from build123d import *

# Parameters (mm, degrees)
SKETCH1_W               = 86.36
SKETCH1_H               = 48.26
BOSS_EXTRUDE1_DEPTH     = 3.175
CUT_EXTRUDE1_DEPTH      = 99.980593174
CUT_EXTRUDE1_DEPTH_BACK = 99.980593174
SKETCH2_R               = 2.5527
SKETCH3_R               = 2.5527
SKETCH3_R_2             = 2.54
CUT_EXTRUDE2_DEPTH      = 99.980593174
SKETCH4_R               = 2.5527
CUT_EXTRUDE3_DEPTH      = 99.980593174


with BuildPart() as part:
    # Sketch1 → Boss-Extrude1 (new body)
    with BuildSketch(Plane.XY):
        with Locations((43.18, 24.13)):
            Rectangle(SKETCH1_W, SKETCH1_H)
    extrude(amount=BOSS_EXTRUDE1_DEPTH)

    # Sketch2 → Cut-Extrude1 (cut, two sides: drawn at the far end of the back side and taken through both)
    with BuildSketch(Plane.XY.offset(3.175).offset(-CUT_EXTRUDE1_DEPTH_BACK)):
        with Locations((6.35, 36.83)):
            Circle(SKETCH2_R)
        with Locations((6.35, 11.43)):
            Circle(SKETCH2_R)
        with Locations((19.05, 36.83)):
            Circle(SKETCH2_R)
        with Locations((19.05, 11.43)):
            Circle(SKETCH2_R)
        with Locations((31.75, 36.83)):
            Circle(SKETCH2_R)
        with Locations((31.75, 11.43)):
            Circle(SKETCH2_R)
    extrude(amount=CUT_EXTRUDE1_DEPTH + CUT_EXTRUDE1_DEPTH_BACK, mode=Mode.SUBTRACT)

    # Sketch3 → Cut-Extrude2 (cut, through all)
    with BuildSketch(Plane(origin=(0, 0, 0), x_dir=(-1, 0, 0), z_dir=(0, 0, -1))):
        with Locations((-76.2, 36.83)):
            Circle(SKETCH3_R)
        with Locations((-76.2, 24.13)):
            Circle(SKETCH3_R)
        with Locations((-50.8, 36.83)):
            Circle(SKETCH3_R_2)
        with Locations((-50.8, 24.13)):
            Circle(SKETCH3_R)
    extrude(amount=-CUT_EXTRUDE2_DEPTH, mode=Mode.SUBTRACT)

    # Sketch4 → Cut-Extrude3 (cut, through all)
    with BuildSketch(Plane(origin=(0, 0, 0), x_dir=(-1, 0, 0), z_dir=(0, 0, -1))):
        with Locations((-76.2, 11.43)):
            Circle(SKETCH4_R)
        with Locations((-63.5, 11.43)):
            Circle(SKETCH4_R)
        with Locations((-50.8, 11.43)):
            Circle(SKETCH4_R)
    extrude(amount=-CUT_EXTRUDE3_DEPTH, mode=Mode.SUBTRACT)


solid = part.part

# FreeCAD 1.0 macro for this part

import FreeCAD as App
import Part
import Sketcher
from FreeCAD import Vector
Q = App.Units.Quantity

doc = App.newDocument("Part")
params = doc.addObject("Spreadsheet::Sheet", "Params")
for row, (alias, value) in enumerate([
    ("sketch1_width", "3.4 in"),
    ("sketch1_height", "1.9 in"),
    ("pad1_length", "0.125 in"),
    ("sketch2_diameter", "0.201 in"),
    ("sketch3_diameter", "0.2 in"),
    ("sketch3_diameter2", "0.201 in"),
    ("sketch4_diameter", "0.201 in"),
], start=1):
    params.set(f"A{row}", alias)
    params.set(f"B{row}", "=" + value)
    params.setAlias(f"B{row}", alias)

body = doc.addObject("PartDesign::Body", "Body")

# Sketch on XY plane
sketch1 = body.newObject("Sketcher::SketchObject", "Sketch")
sketch1.AttachmentSupport = (doc.getObject("XY_Plane"), [""])
sketch1.MapMode = "FlatFace"
sketch1.addGeometry(Part.LineSegment(Vector(0, 48, 0), Vector(0, 0, 0)), False)
sketch1.addGeometry(Part.LineSegment(Vector(0, 0, 0), Vector(86, 0, 0)), False)
sketch1.addGeometry(Part.LineSegment(Vector(86, 0, 0), Vector(86, 48, 0)), False)
sketch1.addGeometry(Part.LineSegment(Vector(86, 48, 0), Vector(0, 48, 0)), False)
sketch1.addConstraint(Sketcher.Constraint("Coincident", 0, 2, 1, 1))
sketch1.addConstraint(Sketcher.Constraint("Coincident", 1, 2, 2, 1))
sketch1.addConstraint(Sketcher.Constraint("Coincident", 2, 2, 3, 1))
sketch1.addConstraint(Sketcher.Constraint("Coincident", 3, 2, 0, 1))
sketch1.addConstraint(Sketcher.Constraint("Vertical", 0))
sketch1.addConstraint(Sketcher.Constraint("Horizontal", 1))
sketch1.addConstraint(Sketcher.Constraint("Vertical", 2))
sketch1.addConstraint(Sketcher.Constraint("Horizontal", 3))
sketch1.addConstraint(Sketcher.Constraint("Coincident", 0, 2, -1, 1))
sketch1.addConstraint(Sketcher.Constraint("DistanceX", 1, 1, 1, 2, Q("3.4 in")))
sketch1.addConstraint(Sketcher.Constraint("DistanceY", 0, 2, 0, 1, Q("1.9 in")))
sketch1.setExpression("Constraints[9]", "Params.sketch1_width")
sketch1.setExpression("Constraints[10]", "Params.sketch1_height")
pad1 = body.newObject("PartDesign::Pad", "Pad")
pad1.Profile = sketch1
pad1.setExpression("Length", "Params.pad1_length")

# Sketch on XY plane
sketch2 = body.newObject("Sketcher::SketchObject", "Sketch001")
sketch2.AttachmentSupport = (doc.getObject("XY_Plane"), [""])
sketch2.MapMode = "FlatFace"
sketch2.AttachmentOffset = App.Placement(Vector(0, 0, 0.125 * 25.4), App.Rotation())
sketch2.addGeometry(Part.Circle(Vector(6.3, 36.8, 0), Vector(0, 0, 1), 2.6), False)
sketch2.addGeometry(Part.Circle(Vector(6.3, 11.4, 0), Vector(0, 0, 1), 2.6), False)
sketch2.addGeometry(Part.Circle(Vector(19.1, 36.8, 0), Vector(0, 0, 1), 2.6), False)
sketch2.addGeometry(Part.Circle(Vector(19.1, 11.4, 0), Vector(0, 0, 1), 2.6), False)
sketch2.addGeometry(Part.Circle(Vector(31.8, 36.8, 0), Vector(0, 0, 1), 2.6), False)
sketch2.addGeometry(Part.Circle(Vector(31.8, 11.4, 0), Vector(0, 0, 1), 2.6), False)
sketch2.addConstraint(Sketcher.Constraint("Equal", 0, 1))
sketch2.addConstraint(Sketcher.Constraint("Equal", 1, 2))
sketch2.addConstraint(Sketcher.Constraint("Equal", 2, 3))
sketch2.addConstraint(Sketcher.Constraint("Equal", 3, 4))
sketch2.addConstraint(Sketcher.Constraint("Equal", 4, 5))
sketch2.addConstraint(Sketcher.Constraint("Horizontal", 0, 3, 2, 3))
sketch2.addConstraint(Sketcher.Constraint("Horizontal", 1, 3, 3, 3))
sketch2.addConstraint(Sketcher.Constraint("Horizontal", 2, 3, 4, 3))
sketch2.addConstraint(Sketcher.Constraint("Horizontal", 3, 3, 5, 3))
sketch2.addConstraint(Sketcher.Constraint("Vertical", 0, 3, 1, 3))
sketch2.addConstraint(Sketcher.Constraint("Vertical", 2, 3, 3, 3))
sketch2.addConstraint(Sketcher.Constraint("Vertical", 4, 3, 5, 3))
sketch2.addConstraint(Sketcher.Constraint("Diameter", 0, Q("0.201 in")))
sketch2.addConstraint(Sketcher.Constraint("DistanceY", 1, 3, 0, 3, Q("1 in")))
sketch2.addConstraint(Sketcher.Constraint("DistanceX", 0, 3, 4, 3, Q("1 in")))
sketch2.addConstraint(Sketcher.Constraint("DistanceX", 0, 3, 2, 3, Q("0.5 in")))
sketch2.addConstraint(Sketcher.Constraint("DistanceX", -1, 1, 0, 3, Q("0.25 in")))
sketch2.addConstraint(Sketcher.Constraint("DistanceY", -1, 1, 0, 3, Q("1.45 in")))
sketch2.setExpression("Constraints[12]", "Params.sketch2_diameter")
pocket1 = body.newObject("PartDesign::Pocket", "Pocket")
pocket1.Profile = sketch2
pocket1.Type = "ThroughAll"
pocket1.Midplane = True

# Sketch on XY plane
sketch3 = body.newObject("Sketcher::SketchObject", "Sketch002")
sketch3.AttachmentSupport = (doc.getObject("XY_Plane"), [""])
sketch3.MapMode = "FlatFace"
sketch3.addGeometry(Part.Circle(Vector(76.2, 36.8, 0), Vector(0, 0, 1), 2.6), False)
sketch3.addGeometry(Part.Circle(Vector(76.2, 24.1, 0), Vector(0, 0, 1), 2.6), False)
sketch3.addGeometry(Part.Circle(Vector(50.8, 36.8, 0), Vector(0, 0, 1), 2.5), False)
sketch3.addGeometry(Part.Circle(Vector(50.8, 24.1, 0), Vector(0, 0, 1), 2.6), False)
sketch3.addConstraint(Sketcher.Constraint("Equal", 0, 1))
sketch3.addConstraint(Sketcher.Constraint("Equal", 1, 3))
sketch3.addConstraint(Sketcher.Constraint("Horizontal", 0, 3, 2, 3))
sketch3.addConstraint(Sketcher.Constraint("Horizontal", 1, 3, 3, 3))
sketch3.addConstraint(Sketcher.Constraint("Vertical", 0, 3, 1, 3))
sketch3.addConstraint(Sketcher.Constraint("Vertical", 2, 3, 3, 3))
sketch3.addConstraint(Sketcher.Constraint("Diameter", 2, Q("0.2 in")))
sketch3.addConstraint(Sketcher.Constraint("Diameter", 0, Q("0.201 in")))
sketch3.addConstraint(Sketcher.Constraint("DistanceX", -1, 1, 0, 3, Q("3 in")))
sketch3.addConstraint(Sketcher.Constraint("DistanceX", -1, 1, 2, 3, Q("2 in")))
sketch3.addConstraint(Sketcher.Constraint("DistanceY", 1, 3, 0, 3, Q("0.5 in")))
sketch3.addConstraint(Sketcher.Constraint("DistanceY", -1, 1, 0, 3, Q("1.45 in")))
sketch3.setExpression("Constraints[6]", "Params.sketch3_diameter")
sketch3.setExpression("Constraints[7]", "Params.sketch3_diameter2")
pocket2 = body.newObject("PartDesign::Pocket", "Pocket001")
pocket2.Profile = sketch3
pocket2.Type = "ThroughAll"
pocket2.Reversed = True

# Sketch on XY plane
sketch4 = body.newObject("Sketcher::SketchObject", "Sketch003")
sketch4.AttachmentSupport = (doc.getObject("XY_Plane"), [""])
sketch4.MapMode = "FlatFace"
sketch4.addGeometry(Part.Circle(Vector(76.2, 11.4, 0), Vector(0, 0, 1), 2.6), False)
sketch4.addGeometry(Part.Circle(Vector(63.5, 11.4, 0), Vector(0, 0, 1), 2.6), False)
sketch4.addGeometry(Part.Circle(Vector(50.8, 11.4, 0), Vector(0, 0, 1), 2.6), False)
sketch4.addConstraint(Sketcher.Constraint("Equal", 0, 1))
sketch4.addConstraint(Sketcher.Constraint("Equal", 1, 2))
sketch4.addConstraint(Sketcher.Constraint("Horizontal", 0, 3, 1, 3))
sketch4.addConstraint(Sketcher.Constraint("Horizontal", 1, 3, 2, 3))
sketch4.addConstraint(Sketcher.Constraint("Diameter", 0, Q("0.201 in")))
sketch4.addConstraint(Sketcher.Constraint("DistanceX", -1, 1, 0, 3, Q("3 in")))
sketch4.addConstraint(Sketcher.Constraint("DistanceX", -1, 1, 2, 3, Q("2 in")))
sketch4.addConstraint(Sketcher.Constraint("DistanceX", -1, 1, 1, 3, Q("2.5 in")))
sketch4.addConstraint(Sketcher.Constraint("DistanceY", -1, 1, 0, 3, Q("0.45 in")))
sketch4.setExpression("Constraints[4]", "Params.sketch4_diameter")
pocket3 = body.newObject("PartDesign::Pocket", "Pocket002")
pocket3.Profile = sketch4
pocket3.Type = "ThroughAll"
pocket3.Reversed = True

doc.recompute()
